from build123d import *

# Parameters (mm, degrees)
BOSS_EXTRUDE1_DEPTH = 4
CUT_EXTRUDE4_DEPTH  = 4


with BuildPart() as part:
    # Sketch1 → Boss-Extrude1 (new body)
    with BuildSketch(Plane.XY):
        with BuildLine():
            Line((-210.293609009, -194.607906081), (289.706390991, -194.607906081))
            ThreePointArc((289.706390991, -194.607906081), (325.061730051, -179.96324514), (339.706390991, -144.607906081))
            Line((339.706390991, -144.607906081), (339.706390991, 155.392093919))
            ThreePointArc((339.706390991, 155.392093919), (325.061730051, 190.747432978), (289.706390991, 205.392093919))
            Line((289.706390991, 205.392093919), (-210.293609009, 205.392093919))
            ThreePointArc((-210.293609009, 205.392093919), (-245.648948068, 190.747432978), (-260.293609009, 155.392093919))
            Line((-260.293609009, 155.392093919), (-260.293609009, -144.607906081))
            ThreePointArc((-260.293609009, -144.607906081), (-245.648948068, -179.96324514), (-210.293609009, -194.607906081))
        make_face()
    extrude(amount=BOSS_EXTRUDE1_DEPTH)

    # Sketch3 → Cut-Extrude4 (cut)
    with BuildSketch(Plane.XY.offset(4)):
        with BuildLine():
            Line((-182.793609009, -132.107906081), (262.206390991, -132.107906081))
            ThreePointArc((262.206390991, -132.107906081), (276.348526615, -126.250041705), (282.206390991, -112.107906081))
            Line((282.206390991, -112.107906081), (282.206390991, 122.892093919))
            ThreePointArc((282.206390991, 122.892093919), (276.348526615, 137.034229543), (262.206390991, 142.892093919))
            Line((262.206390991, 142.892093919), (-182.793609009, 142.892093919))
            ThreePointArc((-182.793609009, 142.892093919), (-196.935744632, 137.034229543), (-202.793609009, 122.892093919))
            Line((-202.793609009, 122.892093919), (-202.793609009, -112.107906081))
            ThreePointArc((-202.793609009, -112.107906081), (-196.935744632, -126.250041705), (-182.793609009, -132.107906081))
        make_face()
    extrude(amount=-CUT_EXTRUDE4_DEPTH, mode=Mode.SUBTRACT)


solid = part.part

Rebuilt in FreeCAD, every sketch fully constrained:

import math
import FreeCAD as App
import Part
import Sketcher
from FreeCAD import Vector

doc = App.newDocument("Part")
body = doc.addObject("PartDesign::Body", "Body")

# Sketch on XY plane
sketch1 = body.newObject("Sketcher::SketchObject", "Sketch")
sketch1.AttachmentSupport = (doc.getObject("XY_Plane"), [""])
sketch1.MapMode = "FlatFace"
sketch1.addGeometry([
    Part.LineSegment(Vector(-210, -195, 0), Vector(290, -195, 0)),  # 0
    Part.ArcOfCircle(Part.Circle(Vector(290, -145, 0), Vector(0, 0, 1), 50), math.radians(-90), math.radians(0)),  # 1
    Part.LineSegment(Vector(340, -145, 0), Vector(340, 155, 0)),  # 2
    Part.ArcOfCircle(Part.Circle(Vector(290, 155, 0), Vector(0, 0, 1), 50), math.radians(0), math.radians(90)),  # 3
    Part.LineSegment(Vector(290, 205, 0), Vector(-210, 205, 0)),  # 4
    Part.ArcOfCircle(Part.Circle(Vector(-210, 155, 0), Vector(0, 0, 1), 50), math.radians(90), math.radians(180)),  # 5
    Part.LineSegment(Vector(-260, 155, 0), Vector(-260, -145, 0)),  # 6
    Part.ArcOfCircle(Part.Circle(Vector(-210, -145, 0), Vector(0, 0, 1), 50), math.radians(-180), math.radians(-90)),  # 7
], False)
sketch1.addConstraint([
    Sketcher.Constraint("Tangent", 0, 2, 1, 1),
    Sketcher.Constraint("Tangent", 1, 2, 2, 1),
    Sketcher.Constraint("Tangent", 2, 2, 3, 1),
    Sketcher.Constraint("Tangent", 3, 2, 4, 1),
    Sketcher.Constraint("Tangent", 4, 2, 5, 1),
    Sketcher.Constraint("Tangent", 5, 2, 6, 1),
    Sketcher.Constraint("Tangent", 6, 2, 7, 1),
    Sketcher.Constraint("Tangent", 7, 2, 0, 1),
    Sketcher.Constraint("Horizontal", 0),
    Sketcher.Constraint("Vertical", 2),
    Sketcher.Constraint("Horizontal", 4),
    Sketcher.Constraint("Vertical", 6),
    Sketcher.Constraint("Equal", 1, 3),
    Sketcher.Constraint("Equal", 3, 5),
    Sketcher.Constraint("Equal", 5, 7),
    Sketcher.Constraint("Radius", 1, 50.0),
    Sketcher.Constraint("DistanceX", 0, 1, 0, 2, 500.0),
    Sketcher.Constraint("DistanceY", 2, 1, 2, 2, 300.0),
    Sketcher.Constraint("DistanceX", -1, 1, 1, 3, 289.706391),
    Sketcher.Constraint("DistanceY", 1, 3, -1, 1, 144.607906),
])
pad1 = body.newObject("PartDesign::Pad", "Pad")
pad1.Profile = sketch1
pad1.Length = 4

# Sketch on XY plane
sketch2 = body.newObject("Sketcher::SketchObject", "Sketch001")
sketch2.AttachmentSupport = (doc.getObject("XY_Plane"), [""])
sketch2.MapMode = "FlatFace"
sketch2.AttachmentOffset = App.Placement(Vector(0, 0, 4), App.Rotation())
sketch2.addGeometry([
    Part.LineSegment(Vector(-183, -132, 0), Vector(262, -132, 0)),  # 0
    Part.ArcOfCircle(Part.Circle(Vector(262, -112, 0), Vector(0, 0, 1), 20), math.radians(-90), math.radians(0)),  # 1
    Part.LineSegment(Vector(282, -112, 0), Vector(282, 123, 0)),  # 2
    Part.ArcOfCircle(Part.Circle(Vector(262, 123, 0), Vector(0, 0, 1), 20), math.radians(0), math.radians(90)),  # 3
    Part.LineSegment(Vector(262, 143, 0), Vector(-183, 143, 0)),  # 4
    Part.ArcOfCircle(Part.Circle(Vector(-183, 123, 0), Vector(0, 0, 1), 20), math.radians(90), math.radians(180)),  # 5
    Part.LineSegment(Vector(-203, 123, 0), Vector(-203, -112, 0)),  # 6
    Part.ArcOfCircle(Part.Circle(Vector(-183, -112, 0), Vector(0, 0, 1), 20), math.radians(-180), math.radians(-90)),  # 7
], False)
sketch2.addConstraint([
    Sketcher.Constraint("Tangent", 0, 2, 1, 1),
    Sketcher.Constraint("Tangent", 1, 2, 2, 1),
    Sketcher.Constraint("Tangent", 2, 2, 3, 1),
    Sketcher.Constraint("Tangent", 3, 2, 4, 1),
    Sketcher.Constraint("Tangent", 4, 2, 5, 1),
    Sketcher.Constraint("Tangent", 5, 2, 6, 1),
    Sketcher.Constraint("Tangent", 6, 2, 7, 1),
    Sketcher.Constraint("Tangent", 7, 2, 0, 1),
    Sketcher.Constraint("Horizontal", 0),
    Sketcher.Constraint("Vertical", 2),
    Sketcher.Constraint("Horizontal", 4),
    Sketcher.Constraint("Vertical", 6),
    Sketcher.Constraint("Equal", 1, 3),
    Sketcher.Constraint("Equal", 3, 5),
    Sketcher.Constraint("Equal", 5, 7),
    Sketcher.Constraint("Radius", 1, 20.0),
    Sketcher.Constraint("DistanceX", 0, 1, 0, 2, 445.0),
    Sketcher.Constraint("DistanceY", 2, 1, 2, 2, 235.0),
    Sketcher.Constraint("DistanceX", -1, 1, 1, 3, 262.206391),
    Sketcher.Constraint("DistanceY", 1, 3, -1, 1, 112.107906),
])
pocket1 = body.newObject("PartDesign::Pocket", "Pocket")
pocket1.Profile = sketch2
pocket1.Length = 4

doc.recompute()
